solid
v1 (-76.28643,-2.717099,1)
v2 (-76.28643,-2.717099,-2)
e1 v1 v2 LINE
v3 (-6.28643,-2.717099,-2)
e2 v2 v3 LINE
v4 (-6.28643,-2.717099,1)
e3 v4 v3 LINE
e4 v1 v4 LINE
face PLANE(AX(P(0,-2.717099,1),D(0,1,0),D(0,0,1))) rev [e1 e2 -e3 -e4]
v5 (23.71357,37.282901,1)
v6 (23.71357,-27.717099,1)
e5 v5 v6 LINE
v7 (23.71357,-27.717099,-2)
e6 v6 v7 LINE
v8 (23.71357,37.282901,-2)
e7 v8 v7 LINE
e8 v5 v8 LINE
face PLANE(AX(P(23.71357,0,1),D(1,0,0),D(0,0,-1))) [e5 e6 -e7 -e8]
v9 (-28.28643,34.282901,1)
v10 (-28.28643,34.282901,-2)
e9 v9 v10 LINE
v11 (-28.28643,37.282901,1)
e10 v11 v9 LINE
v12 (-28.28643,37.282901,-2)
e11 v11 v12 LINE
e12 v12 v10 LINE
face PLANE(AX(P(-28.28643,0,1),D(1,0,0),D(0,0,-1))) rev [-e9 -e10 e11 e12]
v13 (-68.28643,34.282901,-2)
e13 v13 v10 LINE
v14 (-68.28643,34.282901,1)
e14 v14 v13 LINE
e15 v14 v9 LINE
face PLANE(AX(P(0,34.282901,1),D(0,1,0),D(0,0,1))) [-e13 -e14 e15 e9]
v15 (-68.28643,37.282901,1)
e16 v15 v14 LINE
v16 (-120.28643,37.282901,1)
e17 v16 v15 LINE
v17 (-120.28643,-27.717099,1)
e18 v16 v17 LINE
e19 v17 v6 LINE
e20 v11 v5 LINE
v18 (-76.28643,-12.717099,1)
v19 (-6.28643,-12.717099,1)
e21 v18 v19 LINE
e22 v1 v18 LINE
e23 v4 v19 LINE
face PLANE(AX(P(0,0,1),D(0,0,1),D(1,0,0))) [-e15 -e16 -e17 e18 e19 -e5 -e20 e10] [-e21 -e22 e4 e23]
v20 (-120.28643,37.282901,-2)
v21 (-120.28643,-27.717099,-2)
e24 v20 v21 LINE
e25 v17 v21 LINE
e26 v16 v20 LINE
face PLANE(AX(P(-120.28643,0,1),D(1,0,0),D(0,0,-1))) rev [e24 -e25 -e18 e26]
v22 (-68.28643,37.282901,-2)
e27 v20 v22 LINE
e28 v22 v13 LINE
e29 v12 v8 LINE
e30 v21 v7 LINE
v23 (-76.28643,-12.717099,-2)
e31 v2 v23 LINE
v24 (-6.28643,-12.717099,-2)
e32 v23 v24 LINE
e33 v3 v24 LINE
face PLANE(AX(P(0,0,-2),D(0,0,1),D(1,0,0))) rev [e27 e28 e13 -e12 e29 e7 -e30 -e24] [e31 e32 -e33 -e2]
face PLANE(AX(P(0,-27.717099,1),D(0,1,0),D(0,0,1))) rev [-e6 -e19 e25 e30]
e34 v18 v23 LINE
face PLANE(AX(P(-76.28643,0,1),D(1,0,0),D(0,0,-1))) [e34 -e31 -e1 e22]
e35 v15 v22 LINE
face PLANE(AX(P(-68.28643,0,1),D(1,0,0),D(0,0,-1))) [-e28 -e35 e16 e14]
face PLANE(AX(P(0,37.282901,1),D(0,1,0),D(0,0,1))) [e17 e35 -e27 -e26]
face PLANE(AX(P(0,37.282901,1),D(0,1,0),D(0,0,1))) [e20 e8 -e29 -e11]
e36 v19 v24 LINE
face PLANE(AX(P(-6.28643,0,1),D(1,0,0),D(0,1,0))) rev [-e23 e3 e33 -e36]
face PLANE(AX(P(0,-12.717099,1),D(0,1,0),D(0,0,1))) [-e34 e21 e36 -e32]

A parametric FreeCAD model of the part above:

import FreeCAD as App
import Part
import Sketcher


def add_polygon(sketch, points):
    """Adds a closed chain of lines whose ends are joined by coincident constraints."""
    first, n = sketch.GeometryCount, len(points)
    for a, b in zip(points, points[1:] + points[:1]):
        sketch.addGeometry(Part.LineSegment(App.Vector(*a, 0), App.Vector(*b, 0)), False)
    for i in range(n):
        sketch.addConstraint(Sketcher.Constraint("Coincident", first + i, 2, first + (i + 1) % n, 1))

doc = App.newDocument("Part")
body = doc.addObject("PartDesign::Body", "Body")

sketch1 = doc.addObject("Sketcher::SketchObject", "Sketch")
body.addObject(sketch1)
sketch1.AttachmentSupport = (doc.XY_Plane, [""])
sketch1.MapMode = "FlatFace"
add_polygon(sketch1, [(-68.3, 37.3), (-120.3, 37.3), (-120.3, -27.7), (23.7, -27.7), (23.7, 37.3), (-28.3, 37.3), (-28.3, 34.3), (-68.3, 34.3)])
add_polygon(sketch1, [(-6.3, -12.7), (-76.3, -12.7), (-76.3, -2.7), (-6.3, -2.7)])
sketch1.addConstraint([
    Sketcher.Constraint("Horizontal", 0),
    Sketcher.Constraint("Vertical", 1),
    Sketcher.Constraint("Horizontal", 2),
    Sketcher.Constraint("Vertical", 3),
    Sketcher.Constraint("Horizontal", 4),
    Sketcher.Constraint("Vertical", 5),
    Sketcher.Constraint("Horizontal", 6),
    Sketcher.Constraint("Vertical", 7),
    Sketcher.Constraint("Horizontal", 8),
    Sketcher.Constraint("Vertical", 9),
    Sketcher.Constraint("Horizontal", 10),
    Sketcher.Constraint("Vertical", 11),
    Sketcher.Constraint("Horizontal", 0, 2, 3, 2),
    Sketcher.Constraint("Equal", 0, 4),
    Sketcher.Constraint("DistanceX", 0, 2, 0, 1, 52.0),
    Sketcher.Constraint("DistanceX", 2, 1, 2, 2, 144.0),
    Sketcher.Constraint("DistanceX", 8, 2, 8, 1, 70.0),
    Sketcher.Constraint("DistanceY", 1, 2, 1, 1, 65.0),
    Sketcher.Constraint("DistanceY", 5, 2, 5, 1, 3.0),
    Sketcher.Constraint("DistanceY", 9, 1, 9, 2, 10.0),
    Sketcher.Constraint("DistanceX", 1, 2, 8, 2, 44.0),
    Sketcher.Constraint("DistanceY", 1, 2, 8, 2, 15.0),
    Sketcher.Constraint("DistanceY", -1, 1, 0, 2, 37.282901),
    Sketcher.Constraint("DistanceX", 0, 2, -1, 1, 120.28643),
])
pad1 = doc.addObject("PartDesign::Pad", "Pad")
body.addObject(pad1)
pad1.Profile = sketch1
pad1.Type = "TwoLengths"
pad1.Length = 1
pad1.Length2 = 2

doc.recompute()
